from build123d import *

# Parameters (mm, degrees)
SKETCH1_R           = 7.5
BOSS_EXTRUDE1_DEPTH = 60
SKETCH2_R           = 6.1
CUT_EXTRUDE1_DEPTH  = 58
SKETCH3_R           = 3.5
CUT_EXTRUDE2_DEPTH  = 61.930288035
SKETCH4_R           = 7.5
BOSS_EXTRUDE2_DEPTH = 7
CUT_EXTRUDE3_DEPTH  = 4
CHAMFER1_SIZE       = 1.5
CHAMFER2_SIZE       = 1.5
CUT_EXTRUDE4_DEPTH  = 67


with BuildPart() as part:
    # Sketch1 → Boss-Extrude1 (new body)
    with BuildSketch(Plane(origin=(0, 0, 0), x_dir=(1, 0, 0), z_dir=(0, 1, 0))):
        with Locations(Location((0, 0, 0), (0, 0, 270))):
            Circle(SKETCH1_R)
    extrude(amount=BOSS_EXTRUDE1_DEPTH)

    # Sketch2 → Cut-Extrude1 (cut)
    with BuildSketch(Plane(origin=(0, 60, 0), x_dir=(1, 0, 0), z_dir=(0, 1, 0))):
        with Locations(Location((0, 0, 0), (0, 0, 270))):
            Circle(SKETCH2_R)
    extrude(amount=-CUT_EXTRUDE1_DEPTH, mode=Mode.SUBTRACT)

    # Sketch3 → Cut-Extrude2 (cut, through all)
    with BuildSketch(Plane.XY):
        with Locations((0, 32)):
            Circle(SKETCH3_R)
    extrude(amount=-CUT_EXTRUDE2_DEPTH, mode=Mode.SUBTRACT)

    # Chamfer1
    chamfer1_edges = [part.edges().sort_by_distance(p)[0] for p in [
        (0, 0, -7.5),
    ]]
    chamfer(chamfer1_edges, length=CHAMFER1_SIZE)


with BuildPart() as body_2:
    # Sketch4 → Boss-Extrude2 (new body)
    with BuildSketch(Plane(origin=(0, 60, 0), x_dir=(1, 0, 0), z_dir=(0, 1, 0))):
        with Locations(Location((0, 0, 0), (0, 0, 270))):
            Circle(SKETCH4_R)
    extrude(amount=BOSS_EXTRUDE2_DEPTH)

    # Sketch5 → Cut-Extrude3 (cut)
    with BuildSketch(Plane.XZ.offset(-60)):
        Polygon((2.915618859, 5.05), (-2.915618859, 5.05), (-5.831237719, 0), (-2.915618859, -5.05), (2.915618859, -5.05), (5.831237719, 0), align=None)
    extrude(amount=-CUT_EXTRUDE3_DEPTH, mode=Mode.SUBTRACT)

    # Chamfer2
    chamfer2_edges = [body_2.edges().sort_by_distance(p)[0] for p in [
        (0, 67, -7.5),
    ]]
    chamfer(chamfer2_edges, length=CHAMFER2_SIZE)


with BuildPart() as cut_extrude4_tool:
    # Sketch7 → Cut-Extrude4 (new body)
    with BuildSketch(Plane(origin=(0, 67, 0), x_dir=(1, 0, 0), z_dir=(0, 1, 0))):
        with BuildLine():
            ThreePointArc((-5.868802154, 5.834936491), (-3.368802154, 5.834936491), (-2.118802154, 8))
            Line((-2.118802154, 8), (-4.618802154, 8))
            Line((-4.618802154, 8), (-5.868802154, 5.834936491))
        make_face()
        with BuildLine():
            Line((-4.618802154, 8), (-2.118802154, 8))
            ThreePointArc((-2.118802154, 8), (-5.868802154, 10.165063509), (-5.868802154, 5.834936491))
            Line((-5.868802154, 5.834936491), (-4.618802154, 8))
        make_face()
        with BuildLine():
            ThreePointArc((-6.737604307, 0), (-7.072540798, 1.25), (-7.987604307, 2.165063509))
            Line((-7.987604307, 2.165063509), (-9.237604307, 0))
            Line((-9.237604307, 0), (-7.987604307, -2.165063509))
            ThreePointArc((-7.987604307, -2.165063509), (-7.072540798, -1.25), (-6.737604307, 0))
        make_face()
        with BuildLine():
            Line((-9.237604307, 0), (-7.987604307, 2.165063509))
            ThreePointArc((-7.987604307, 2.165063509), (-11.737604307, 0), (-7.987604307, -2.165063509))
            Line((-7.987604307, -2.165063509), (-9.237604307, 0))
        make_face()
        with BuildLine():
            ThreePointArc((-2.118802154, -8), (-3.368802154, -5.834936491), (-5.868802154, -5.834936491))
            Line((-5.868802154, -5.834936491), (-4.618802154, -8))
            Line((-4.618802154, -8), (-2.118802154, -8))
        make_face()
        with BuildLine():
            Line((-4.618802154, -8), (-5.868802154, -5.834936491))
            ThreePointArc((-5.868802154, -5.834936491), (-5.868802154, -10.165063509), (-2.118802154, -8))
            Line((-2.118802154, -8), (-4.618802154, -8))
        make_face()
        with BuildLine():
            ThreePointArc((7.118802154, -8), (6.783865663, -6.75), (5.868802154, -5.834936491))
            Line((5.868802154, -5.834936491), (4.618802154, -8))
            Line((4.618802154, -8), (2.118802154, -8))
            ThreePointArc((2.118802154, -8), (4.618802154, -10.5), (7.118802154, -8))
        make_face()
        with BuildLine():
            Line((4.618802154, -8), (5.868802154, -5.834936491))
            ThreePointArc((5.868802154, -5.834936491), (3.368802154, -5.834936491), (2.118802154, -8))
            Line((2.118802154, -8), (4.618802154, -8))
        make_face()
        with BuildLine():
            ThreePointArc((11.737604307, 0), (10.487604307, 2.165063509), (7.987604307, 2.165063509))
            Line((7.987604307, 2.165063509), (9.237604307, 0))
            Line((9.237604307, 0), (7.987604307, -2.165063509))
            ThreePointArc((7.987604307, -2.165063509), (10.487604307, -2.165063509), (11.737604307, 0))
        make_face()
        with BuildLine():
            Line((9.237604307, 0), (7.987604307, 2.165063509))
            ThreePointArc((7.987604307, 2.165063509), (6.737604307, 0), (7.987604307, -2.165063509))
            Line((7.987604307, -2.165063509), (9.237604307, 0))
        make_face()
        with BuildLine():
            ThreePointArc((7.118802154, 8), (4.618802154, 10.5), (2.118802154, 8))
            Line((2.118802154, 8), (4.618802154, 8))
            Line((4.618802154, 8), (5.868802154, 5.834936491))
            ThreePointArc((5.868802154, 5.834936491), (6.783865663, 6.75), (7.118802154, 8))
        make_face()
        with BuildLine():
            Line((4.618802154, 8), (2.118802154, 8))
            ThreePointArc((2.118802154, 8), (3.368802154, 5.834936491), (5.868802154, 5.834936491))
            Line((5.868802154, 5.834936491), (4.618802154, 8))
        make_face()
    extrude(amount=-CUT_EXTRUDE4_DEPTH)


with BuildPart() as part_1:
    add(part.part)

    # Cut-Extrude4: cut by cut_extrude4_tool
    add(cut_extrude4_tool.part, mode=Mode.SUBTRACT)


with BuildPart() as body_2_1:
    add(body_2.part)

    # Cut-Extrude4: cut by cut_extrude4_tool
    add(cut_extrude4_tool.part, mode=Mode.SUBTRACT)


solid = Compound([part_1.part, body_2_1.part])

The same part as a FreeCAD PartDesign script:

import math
import FreeCAD as App
import Part
import Sketcher
from FreeCAD import Vector
Q = App.Units.Quantity


def edges_at(feature, points):
    """Names of the edges that pass closest to the given points."""
    edges = feature.Shape.Edges
    near = lambda p: min(range(len(edges)), key=lambda i: edges[i].distToShape(Part.Vertex(*p))[0])
    return sorted({f"Edge{near(p) + 1}" for p in points})

doc = App.newDocument("Part")
params = doc.addObject("Spreadsheet::Sheet", "Params")
for row, (alias, value) in enumerate([
    ("sketch1_diameter", "15 mm"),
    ("pad1_length", "60 mm"),
    ("sketch2_diameter", "12.2 mm"),
    ("pocket1_length", "58 mm"),
    ("sketch3_diameter", "7 mm"),
    ("chamfer_size", "1.5 mm"),
    ("sketch4_diameter", "15 mm"),
    ("pad2_length", "7 mm"),
    ("pocket3_length", "4 mm"),
    ("chamfer2_size", "1.5 mm"),
    ("sketch6_radius", "2.5 mm"),
    ("pad3_length", "67 mm"),
], start=1):
    params.set(f"A{row}", alias)
    params.set(f"B{row}", "=" + value)
    params.setAlias(f"B{row}", alias)

body = doc.addObject("PartDesign::Body", "Body")

# Sketch on XZ plane
sketch1 = doc.addObject("Sketcher::SketchObject", "Sketch")
body.addObject(sketch1)
sketch1.AttachmentSupport = (doc.XZ_Plane, [""])
sketch1.MapMode = "FlatFace"
sketch1.addGeometry(Part.Circle(Vector(0, 0, 0), Vector(0, 0, 1), 7.5), False)
sketch1.addConstraint([
    Sketcher.Constraint("Coincident", 0, 3, -1, 1),
    Sketcher.Constraint("Diameter", 0, 15.0),
])
sketch1.setExpression("Constraints[1]", "Params.sketch1_diameter")
pad1 = doc.addObject("PartDesign::Pad", "Pad")
body.addObject(pad1)
pad1.Profile = sketch1
pad1.setExpression("Length", "Params.pad1_length")
pad1.Reversed = True

# Sketch on XZ plane
sketch2 = doc.addObject("Sketcher::SketchObject", "Sketch001")
body.addObject(sketch2)
sketch2.AttachmentSupport = (doc.XZ_Plane, [""])
sketch2.MapMode = "FlatFace"
sketch2.AttachmentOffset = App.Placement(Vector(0, 0, -60), App.Rotation())
sketch2.addGeometry(Part.Circle(Vector(0, 0, 0), Vector(0, 0, 1), 6.1), False)
sketch2.addConstraint([
    Sketcher.Constraint("Coincident", 0, 3, -1, 1),
    Sketcher.Constraint("Diameter", 0, 12.2),
])
sketch2.setExpression("Constraints[1]", "Params.sketch2_diameter")
pocket1 = doc.addObject("PartDesign::Pocket", "Pocket")
body.addObject(pocket1)
pocket1.Profile = sketch2
pocket1.setExpression("Length", "Params.pocket1_length")
pocket1.Reversed = True

# Sketch on XY plane
sketch3 = doc.addObject("Sketcher::SketchObject", "Sketch002")
body.addObject(sketch3)
sketch3.AttachmentSupport = (doc.XY_Plane, [""])
sketch3.MapMode = "FlatFace"
sketch3.addGeometry(Part.Circle(Vector(0, 32, 0), Vector(0, 0, 1), 3.5), False)
sketch3.addConstraint([
    Sketcher.Constraint("PointOnObject", 0, 3, -2),
    Sketcher.Constraint("Diameter", 0, 7.0),
    Sketcher.Constraint("DistanceY", -1, 1, 0, 3, 32.0),
])
sketch3.setExpression("Constraints[1]", "Params.sketch3_diameter")
pocket2 = doc.addObject("PartDesign::Pocket", "Pocket001")
body.addObject(pocket2)
pocket2.Profile = sketch3
pocket2.Type = "ThroughAll"
doc.recompute()

chamfer = doc.addObject("PartDesign::Chamfer", "Chamfer")
body.addObject(chamfer)
chamfer.Base = (pocket2, edges_at(pocket2, [(0, 0, -7.5)]))
chamfer.setExpression("Size", "Params.chamfer_size")
body2 = doc.addObject("PartDesign::Body", "Body001")

# Sketch on XZ plane
sketch4 = doc.addObject("Sketcher::SketchObject", "Sketch003")
body2.addObject(sketch4)
sketch4.AttachmentSupport = (doc.getObject("XZ_Plane001"), [""])
sketch4.MapMode = "FlatFace"
sketch4.AttachmentOffset = App.Placement(Vector(0, 0, -60), App.Rotation())
sketch4.addGeometry(Part.Circle(Vector(0, 0, 0), Vector(0, 0, 1), 7.5), False)
sketch4.addConstraint([
    Sketcher.Constraint("Coincident", 0, 3, -1, 1),
    Sketcher.Constraint("Diameter", 0, 15.0),
])
sketch4.setExpression("Constraints[1]", "Params.sketch4_diameter")
pad2 = doc.addObject("PartDesign::Pad", "Pad001")
body2.addObject(pad2)
pad2.Profile = sketch4
pad2.setExpression("Length", "Params.pad2_length")
pad2.Reversed = True

# Sketch on XZ plane
sketch5 = doc.addObject("Sketcher::SketchObject", "Sketch004")
body2.addObject(sketch5)
sketch5.AttachmentSupport = (doc.getObject("XZ_Plane001"), [""])
sketch5.MapMode = "FlatFace"
sketch5.AttachmentOffset = App.Placement(Vector(0, 0, -60), App.Rotation())
sketch5.addGeometry([
    Part.LineSegment(Vector(2.915619, 5.05, 0), Vector(-2.915619, 5.05, 0)),  # 0
    Part.LineSegment(Vector(-2.915619, 5.05, 0), Vector(-5.831238, 0, 0)),  # 1
    Part.LineSegment(Vector(-5.831238, 0, 0), Vector(-2.915619, -5.05, 0)),  # 2
    Part.LineSegment(Vector(-2.915619, -5.05, 0), Vector(2.915619, -5.05, 0)),  # 3
    Part.LineSegment(Vector(2.915619, -5.05, 0), Vector(5.831238, 0, 0)),  # 4
    Part.LineSegment(Vector(5.831238, 0, 0), Vector(2.915619, 5.05, 0)),  # 5
], False)
sketch5.addConstraint([
    Sketcher.Constraint("Coincident", 0, 2, 1, 1),
    Sketcher.Constraint("Coincident", 1, 2, 2, 1),
    Sketcher.Constraint("Coincident", 2, 2, 3, 1),
    Sketcher.Constraint("Coincident", 3, 2, 4, 1),
    Sketcher.Constraint("Coincident", 4, 2, 5, 1),
    Sketcher.Constraint("Coincident", 5, 2, 0, 1),
    Sketcher.Constraint("Horizontal", 0),
    Sketcher.Constraint("Horizontal", 3),
    Sketcher.Constraint("Symmetric", 0, 2, 3, 2, -1, 1),
    Sketcher.Constraint("Symmetric", 1, 2, 4, 2, -1, 1),
    Sketcher.Constraint("PointOnObject", 1, 2, -1),
    Sketcher.Constraint("Parallel", 2, 5),
    Sketcher.Constraint("Vertical", 0, 2, 2, 2),
    Sketcher.Constraint("Angle", 1, Q("-120 deg")),
    Sketcher.Constraint("DistanceY", 2, 2, 0, 2, 10.1),
    Sketcher.Constraint("DistanceX", 0, 2, 0, 1, 5.831238),
])
pocket3 = doc.addObject("PartDesign::Pocket", "Pocket002")
body2.addObject(pocket3)
pocket3.Profile = sketch5
pocket3.setExpression("Length", "Params.pocket3_length")
doc.recompute()

chamfer2 = doc.addObject("PartDesign::Chamfer", "Chamfer001")
body2.addObject(chamfer2)
chamfer2.Base = (pocket3, edges_at(pocket3, [(0, 67, -7.5)]))
chamfer2.setExpression("Size", "Params.chamfer2_size")
body3 = doc.addObject("PartDesign::Body", "Body002")
body3.AllowCompound = True

# Sketch on XZ plane
sketch6 = doc.addObject("Sketcher::SketchObject", "Sketch005")
body3.addObject(sketch6)
sketch6.AttachmentSupport = (doc.getObject("XZ_Plane002"), [""])
sketch6.MapMode = "FlatFace"
sketch6.AttachmentOffset = App.Placement(Vector(0, 0, -67), App.Rotation())
sketch6.addGeometry([
    Part.ArcOfCircle(Part.Circle(Vector(-4.618802, -8, 0), Vector(0, 0, 1), 2.5), math.radians(0), math.radians(120)),  # 0
    Part.ArcOfCircle(Part.Circle(Vector(-4.618802, -8, 0), Vector(0, 0, 1), 2.5), math.radians(120), math.radians(360)),  # 1
    Part.ArcOfCircle(Part.Circle(Vector(-9.237604, 0, 0), Vector(0, 0, 1), 2.5), math.radians(-60), math.radians(0)),  # 2
    Part.ArcOfCircle(Part.Circle(Vector(-9.237604, 0, 0), Vector(0, 0, 1), 2.5), math.radians(60), math.radians(300)),  # 3
    Part.ArcOfCircle(Part.Circle(Vector(-9.237604, 0, 0), Vector(0, 0, 1), 2.5), math.radians(0), math.radians(60)),  # 4
    Part.ArcOfCircle(Part.Circle(Vector(-4.618802, 8, 0), Vector(0, 0, 1), 2.5), math.radians(-120), math.radians(0)),  # 5
    Part.ArcOfCircle(Part.Circle(Vector(-4.618802, 8, 0), Vector(0, 0, 1), 2.5), math.radians(0), math.radians(240)),  # 6
    Part.ArcOfCircle(Part.Circle(Vector(4.618802, 8, 0), Vector(0, 0, 1), 2.5), math.radians(-60), math.radians(0)),  # 7
    Part.ArcOfCircle(Part.Circle(Vector(4.618802, 8, 0), Vector(0, 0, 1), 2.5), math.radians(180), math.radians(300)),  # 8
    Part.ArcOfCircle(Part.Circle(Vector(4.618802, 8, 0), Vector(0, 0, 1), 2.5), math.radians(0), math.radians(180)),  # 9
    Part.ArcOfCircle(Part.Circle(Vector(9.237604, 0, 0), Vector(0, 0, 1), 2.5), math.radians(-120), math.radians(0)),  # 10
    Part.ArcOfCircle(Part.Circle(Vector(9.237604, 0, 0), Vector(0, 0, 1), 2.5), math.radians(120), math.radians(240)),  # 11
    Part.ArcOfCircle(Part.Circle(Vector(9.237604, 0, 0), Vector(0, 0, 1), 2.5), math.radians(0), math.radians(120)),  # 12
    Part.ArcOfCircle(Part.Circle(Vector(4.618802, -8, 0), Vector(0, 0, 1), 2.5), math.radians(180), math.radians(360)),  # 13
    Part.ArcOfCircle(Part.Circle(Vector(4.618802, -8, 0), Vector(0, 0, 1), 2.5), math.radians(60), math.radians(180)),  # 14
    Part.ArcOfCircle(Part.Circle(Vector(4.618802, -8, 0), Vector(0, 0, 1), 2.5), math.radians(0), math.radians(60)),  # 15
], False)
sketch6.addConstraint([
    Sketcher.Constraint("Tangent", 0, 1, 1, 2),
    Sketcher.Constraint("Coincident", 1, 1, 0, 2),
    Sketcher.Constraint("Tangent", 2, 1, 3, 2),
    Sketcher.Constraint("Tangent", 3, 1, 4, 2),
    Sketcher.Constraint("Tangent", 4, 1, 2, 2),
    Sketcher.Constraint("Tangent", 5, 1, 6, 2),
    Sketcher.Constraint("Coincident", 6, 1, 5, 2),
    Sketcher.Constraint("Tangent", 7, 1, 8, 2),
    Sketcher.Constraint("Tangent", 8, 1, 9, 2),
    Sketcher.Constraint("Tangent", 9, 1, 7, 2),
    Sketcher.Constraint("Tangent", 10, 1, 11, 2),
    Sketcher.Constraint("Tangent", 11, 1, 12, 2),
    Sketcher.Constraint("Tangent", 12, 1, 10, 2),
    Sketcher.Constraint("Tangent", 13, 1, 14, 2),
    Sketcher.Constraint("Tangent", 14, 1, 15, 2),
    Sketcher.Constraint("Tangent", 15, 1, 13, 2),
    Sketcher.Constraint("Equal", 1, 2),
    Sketcher.Constraint("Equal", 4, 5),
    Sketcher.Constraint("Equal", 6, 7),
    Sketcher.Constraint("Equal", 9, 10),
    Sketcher.Constraint("Equal", 12, 13),
    Sketcher.Constraint("Symmetric", 0, 3, 7, 3, -1, 1),
    Sketcher.Constraint("Symmetric", 2, 3, 10, 3, -1, 1),
    Sketcher.Constraint("Symmetric", 5, 3, 13, 3, -1, 1),
    Sketcher.Constraint("Symmetric", 5, 3, 7, 3, -2),
    Sketcher.Constraint("Symmetric", 2, 1, 10, 1, -2),
    Sketcher.Constraint("PointOnObject", 4, 1, -1),
    Sketcher.Constraint("PointOnObject", 12, 1, -1),
    Sketcher.Constraint("Horizontal", 15, 3, 0, 1),
    Sketcher.Constraint("Horizontal", 9, 3, 6, 1),
    Sketcher.Constraint("Horizontal", 5, 1, 7, 1),
    Sketcher.Constraint("Horizontal", 6, 1, 8, 1),
    Sketcher.Constraint("Horizontal", 8, 1, 9, 1),
    Sketcher.Constraint("Horizontal", 3, 1, 11, 1),
    Sketcher.Constraint("Horizontal", 0, 1, 13, 1),
    Sketcher.Constraint("Horizontal", 1, 1, 14, 1),
    Sketcher.Constraint("Horizontal", 13, 1, 15, 1),
    Sketcher.Constraint("Vertical", 2, 1, 3, 1),
    Sketcher.Constraint("Vertical", 1, 1, 5, 1),
    Sketcher.Constraint("Radius", 0, 2.5),
    Sketcher.Constraint("DistanceY", 0, 3, -1, 1, 8.0),
    Sketcher.Constraint("DistanceX", 1, 1, 0, 3, 1.25),
    Sketcher.Constraint("DistanceX", 4, 3, 2, 1, 1.25),
    Sketcher.Constraint("DistanceX", 0, 3, -1, 1, 4.618802),
    Sketcher.Constraint("DistanceX", 2, 3, -1, 1, 9.237604),
])
sketch6.setExpression("Constraints[39]", "Params.sketch6_radius")
pad3 = doc.addObject("PartDesign::Pad", "Pad002")
body3.addObject(pad3)
pad3.Profile = sketch6
pad3.setExpression("Length", "Params.pad3_length")
doc.recompute()

body4 = doc.addObject("PartDesign::Body", "Body003")
body4.BaseFeature = body3
boolean = doc.addObject("PartDesign::Boolean", "Boolean")
body.addObject(boolean)
boolean.Type = "Cut"
boolean.addObjects([body4])
doc.recompute()

boolean2 = doc.addObject("PartDesign::Boolean", "Boolean001")
body2.addObject(boolean2)
boolean2.Type = "Cut"
boolean2.addObjects([body3])

doc.recompute()
